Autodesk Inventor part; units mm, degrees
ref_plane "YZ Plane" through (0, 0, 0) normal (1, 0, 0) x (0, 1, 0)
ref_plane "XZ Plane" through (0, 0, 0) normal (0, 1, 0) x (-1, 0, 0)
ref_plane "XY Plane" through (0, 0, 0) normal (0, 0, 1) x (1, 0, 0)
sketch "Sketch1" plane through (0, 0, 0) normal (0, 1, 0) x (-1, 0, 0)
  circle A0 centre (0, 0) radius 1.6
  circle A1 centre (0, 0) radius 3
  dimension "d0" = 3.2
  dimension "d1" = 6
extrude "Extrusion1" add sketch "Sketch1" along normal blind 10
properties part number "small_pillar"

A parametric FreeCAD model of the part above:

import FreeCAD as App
import Part
import Sketcher

V = App.Vector
Q = App.Units.Quantity

doc = App.newDocument("Part")
body = doc.addObject("PartDesign::Body", "Body")

sketch1 = doc.addObject("Sketcher::SketchObject", "Sketch")
body.addObject(sketch1)
sketch1.AttachmentSupport = (doc.XZ_Plane, [""])
sketch1.MapMode = "FlatFace"
sketch1.addGeometry(Part.Circle(V(0, 0, 0), V(0, 0, 1), 3), False)
sketch1.addGeometry(Part.Circle(V(0, 0, 0), V(0, 0, 1), 1.6), False)
sketch1.addConstraint(Sketcher.Constraint("Coincident", 0, 3, -1, 1))
sketch1.addConstraint(Sketcher.Constraint("Coincident", 1, 3, -1, 1))
sketch1.addConstraint(Sketcher.Constraint("Diameter", 0, Q("6 mm")))
sketch1.addConstraint(Sketcher.Constraint("Diameter", 1, Q("3.2 mm")))
pad1 = doc.addObject("PartDesign::Pad", "Pad")
body.addObject(pad1)
pad1.Profile = sketch1
pad1.Length = 10
pad1.Reversed = True

doc.recompute()
